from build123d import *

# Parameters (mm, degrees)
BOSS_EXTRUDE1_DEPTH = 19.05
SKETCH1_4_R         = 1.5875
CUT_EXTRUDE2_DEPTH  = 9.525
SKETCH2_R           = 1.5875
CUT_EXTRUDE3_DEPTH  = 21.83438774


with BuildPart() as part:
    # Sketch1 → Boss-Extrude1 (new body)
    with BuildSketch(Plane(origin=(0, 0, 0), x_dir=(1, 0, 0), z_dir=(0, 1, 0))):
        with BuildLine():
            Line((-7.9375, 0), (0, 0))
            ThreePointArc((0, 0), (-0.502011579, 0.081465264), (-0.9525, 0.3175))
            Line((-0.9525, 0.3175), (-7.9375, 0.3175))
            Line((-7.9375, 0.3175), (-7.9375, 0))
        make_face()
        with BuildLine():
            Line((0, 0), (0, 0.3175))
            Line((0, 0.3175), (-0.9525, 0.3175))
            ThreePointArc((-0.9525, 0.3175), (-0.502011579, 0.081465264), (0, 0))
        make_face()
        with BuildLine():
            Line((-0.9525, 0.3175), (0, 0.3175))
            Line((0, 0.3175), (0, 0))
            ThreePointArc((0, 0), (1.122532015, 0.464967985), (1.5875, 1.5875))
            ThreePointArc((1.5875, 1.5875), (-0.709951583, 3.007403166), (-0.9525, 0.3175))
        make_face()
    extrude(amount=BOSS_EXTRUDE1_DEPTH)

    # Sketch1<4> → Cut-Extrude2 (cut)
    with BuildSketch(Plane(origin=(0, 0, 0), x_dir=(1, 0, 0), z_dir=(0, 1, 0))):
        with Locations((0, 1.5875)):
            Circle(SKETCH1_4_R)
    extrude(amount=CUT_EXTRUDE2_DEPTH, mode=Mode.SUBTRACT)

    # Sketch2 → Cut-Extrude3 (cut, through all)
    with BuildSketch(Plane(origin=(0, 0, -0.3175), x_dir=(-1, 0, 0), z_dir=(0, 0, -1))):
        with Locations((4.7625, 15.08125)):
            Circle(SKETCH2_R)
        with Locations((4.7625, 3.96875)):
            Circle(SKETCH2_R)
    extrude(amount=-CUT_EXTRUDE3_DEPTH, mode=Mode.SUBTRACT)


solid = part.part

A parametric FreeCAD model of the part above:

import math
import FreeCAD as App
import Part
import Sketcher

V = App.Vector
Q = App.Units.Quantity

doc = App.newDocument("Part")
body = doc.addObject("PartDesign::Body", "Body")

sketch1 = doc.addObject("Sketcher::SketchObject", "Sketch")
body.addObject(sketch1)
sketch1.AttachmentSupport = (doc.XZ_Plane, [""])
sketch1.MapMode = "FlatFace"
sketch1.addGeometry(Part.LineSegment(V(-7.94, 0, 0), V(0, 0, 0)), False)
sketch1.addGeometry(Part.ArcOfCircle(Part.Circle(V(0, -1.59, 0), V(0, 0, 1), 1.59), math.radians(0), math.radians(90)), False)
sketch1.addGeometry(Part.ArcOfCircle(Part.Circle(V(0, -1.59, 0), V(0, 0, 1), 1.59), math.radians(127), math.radians(360)), False)
sketch1.addGeometry(Part.LineSegment(V(-0.95, -0.32, 0), V(-7.94, -0.32, 0)), False)
sketch1.addGeometry(Part.LineSegment(V(-7.94, -0.32, 0), V(-7.94, 0, 0)), False)
sketch1.addConstraint(Sketcher.Constraint("Tangent", 0, 2, 1, 2))
sketch1.addConstraint(Sketcher.Constraint("Tangent", 1, 1, 2, 2))
sketch1.addConstraint(Sketcher.Constraint("Coincident", 2, 1, 3, 1))
sketch1.addConstraint(Sketcher.Constraint("Coincident", 3, 2, 4, 1))
sketch1.addConstraint(Sketcher.Constraint("Coincident", 4, 2, 0, 1))
sketch1.addConstraint(Sketcher.Constraint("Horizontal", 0))
sketch1.addConstraint(Sketcher.Constraint("Horizontal", 3))
sketch1.addConstraint(Sketcher.Constraint("Vertical", 4))
sketch1.addConstraint(Sketcher.Constraint("Coincident", 0, 2, -1, 1))
sketch1.addConstraint(Sketcher.Constraint("Equal", 1, 2))
sketch1.addConstraint(Sketcher.Constraint("Horizontal", 2, 3, 1, 1))
sketch1.addConstraint(Sketcher.Constraint("Radius", 1, Q("0.0625 in")))
sketch1.addConstraint(Sketcher.Constraint("DistanceX", 2, 1, 1, 1, Q("0.1 in")))
sketch1.addConstraint(Sketcher.Constraint("DistanceX", 0, 1, 0, 2, Q("0.3125 in")))
pad1 = doc.addObject("PartDesign::Pad", "Pad")
body.addObject(pad1)
pad1.Profile = sketch1
pad1.Length = Q("0.75 in")
pad1.Reversed = True

sketch2 = doc.addObject("Sketcher::SketchObject", "Sketch001")
body.addObject(sketch2)
sketch2.AttachmentSupport = (doc.XZ_Plane, [""])
sketch2.MapMode = "FlatFace"
sketch2.addGeometry(Part.Circle(V(0, -1.6, 0), V(0, 0, 1), 1.6), False)
sketch2.addConstraint(Sketcher.Constraint("PointOnObject", 0, 3, -2))
sketch2.addConstraint(Sketcher.Constraint("Diameter", 0, Q("0.125 in")))
sketch2.addConstraint(Sketcher.Constraint("DistanceY", 0, 3, -1, 1, Q("0.0625 in")))
pocket1 = doc.addObject("PartDesign::Pocket", "Pocket")
body.addObject(pocket1)
pocket1.Profile = sketch2
pocket1.Length = Q("0.375 in")

sketch3 = doc.addObject("Sketcher::SketchObject", "Sketch002")
body.addObject(sketch3)
sketch3.AttachmentSupport = (doc.XY_Plane, [""])
sketch3.MapMode = "FlatFace"
sketch3.AttachmentOffset = App.Placement(V(0, 0, -0.0125 * 25.4), App.Rotation())
sketch3.addGeometry(Part.Circle(V(-4.8, 15.1, 0), V(0, 0, 1), 1.6), False)
sketch3.addGeometry(Part.Circle(V(-4.8, 4, 0), V(0, 0, 1), 1.6), False)
sketch3.addConstraint(Sketcher.Constraint("Equal", 0, 1))
sketch3.addConstraint(Sketcher.Constraint("Vertical", 0, 3, 1, 3))
sketch3.addConstraint(Sketcher.Constraint("Diameter", 0, Q("0.125 in")))
sketch3.addConstraint(Sketcher.Constraint("DistanceX", 0, 3, -1, 1, Q("0.1875 in")))
sketch3.addConstraint(Sketcher.Constraint("DistanceY", -1, 1, 0, 3, Q("0.59375 in")))
sketch3.addConstraint(Sketcher.Constraint("DistanceY", -1, 1, 1, 3, Q("0.15625 in")))
pocket2 = doc.addObject("PartDesign::Pocket", "Pocket001")
body.addObject(pocket2)
pocket2.Profile = sketch3
pocket2.Type = "ThroughAll"
pocket2.Reversed = True

doc.recompute()
